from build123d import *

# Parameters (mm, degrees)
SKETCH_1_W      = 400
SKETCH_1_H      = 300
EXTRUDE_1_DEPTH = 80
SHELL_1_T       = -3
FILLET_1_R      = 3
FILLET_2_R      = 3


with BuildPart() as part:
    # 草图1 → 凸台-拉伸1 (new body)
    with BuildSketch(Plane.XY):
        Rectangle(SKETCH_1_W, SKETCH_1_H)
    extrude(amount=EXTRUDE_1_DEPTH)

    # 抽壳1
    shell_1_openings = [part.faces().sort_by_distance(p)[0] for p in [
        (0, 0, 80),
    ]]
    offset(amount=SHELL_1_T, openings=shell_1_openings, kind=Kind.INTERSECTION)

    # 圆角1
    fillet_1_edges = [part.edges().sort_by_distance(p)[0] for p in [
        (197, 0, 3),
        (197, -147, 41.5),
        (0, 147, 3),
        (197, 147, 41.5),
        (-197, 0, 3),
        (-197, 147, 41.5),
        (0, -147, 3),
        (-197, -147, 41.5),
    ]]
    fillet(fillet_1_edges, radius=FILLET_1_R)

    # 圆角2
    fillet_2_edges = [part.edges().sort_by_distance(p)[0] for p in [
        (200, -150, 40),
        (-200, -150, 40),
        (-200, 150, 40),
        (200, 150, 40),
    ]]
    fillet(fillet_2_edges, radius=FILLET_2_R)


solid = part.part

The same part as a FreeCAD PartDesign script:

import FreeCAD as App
import Part
import Sketcher
from FreeCAD import Vector


def edges_at(feature, points):
    """Names of the edges that pass closest to the given points."""
    edges = feature.Shape.Edges
    near = lambda p: min(range(len(edges)), key=lambda i: edges[i].distToShape(Part.Vertex(*p))[0])
    return sorted({f"Edge{near(p) + 1}" for p in points})


def faces_at(feature, points):
    """Names of the faces that lie closest to the given points."""
    faces = feature.Shape.Faces
    near = lambda p: min(range(len(faces)), key=lambda i: faces[i].distToShape(Part.Vertex(*p))[0])
    return sorted({f"Face{near(p) + 1}" for p in points})


def add_polygon(sketch, points):
    """Adds a closed chain of lines whose ends are joined by coincident constraints."""
    first, n = sketch.GeometryCount, len(points)
    for a, b in zip(points, points[1:] + points[:1]):
        sketch.addGeometry(Part.LineSegment(App.Vector(*a, 0), App.Vector(*b, 0)), False)
    for i in range(n):
        sketch.addConstraint(Sketcher.Constraint("Coincident", first + i, 2, first + (i + 1) % n, 1))

doc = App.newDocument("Part")
params = doc.addObject("Spreadsheet::Sheet", "Params")
for row, (alias, value) in enumerate([
    ("sketch1_width", "400 mm"),
    ("sketch1_height", "300 mm"),
    ("pad1_length", "80 mm"),
    ("thickness_wall", "3 mm"),
    ("fillet_radius", "3 mm"),
    ("fillet2_radius", "3 mm"),
], start=1):
    params.set(f"A{row}", alias)
    params.set(f"B{row}", "=" + value)
    params.setAlias(f"B{row}", alias)

body = doc.addObject("PartDesign::Body", "Body")

sketch1 = body.newObject("Sketcher::SketchObject", "Sketch")
sketch1.AttachmentSupport = (doc.getObject("XY_Plane"), [""])
sketch1.MapMode = "FlatFace"
add_polygon(sketch1, [(-200, 150), (-200, -150), (200, -150), (200, 150)])
sketch1.addConstraint(Sketcher.Constraint("Vertical", 0))
sketch1.addConstraint(Sketcher.Constraint("Horizontal", 1))
sketch1.addConstraint(Sketcher.Constraint("Vertical", 2))
sketch1.addConstraint(Sketcher.Constraint("Horizontal", 3))
sketch1.addConstraint(Sketcher.Constraint("Symmetric", 0, 2, 2, 2, -1, 1))
sketch1.addConstraint(Sketcher.Constraint("DistanceX", 1, 1, 1, 2, 400.0))
sketch1.addConstraint(Sketcher.Constraint("DistanceY", 0, 2, 0, 1, 300.0))
sketch1.setExpression("Constraints[9]", "Params.sketch1_width")
sketch1.setExpression("Constraints[10]", "Params.sketch1_height")
pad1 = body.newObject("PartDesign::Pad", "Pad")
pad1.Profile = sketch1
pad1.setExpression("Length", "Params.pad1_length")
doc.recompute()

thickness = body.newObject("PartDesign::Thickness", "Thickness")
thickness.Base = (pad1, faces_at(pad1, [(0, 0, 80)]))
thickness.setExpression("Value", "Params.thickness_wall")
thickness.Reversed = True
thickness.Join = "Intersection"
doc.recompute()

fillet = body.newObject("PartDesign::Fillet", "Fillet")
fillet.Base = (thickness, edges_at(thickness, [
    (197, 0, 3),
    (197, -147, 41.5),
    (0, 147, 3),
    (197, 147, 41.5),
    (-197, 0, 3),
    (-197, 147, 41.5),
    (0, -147, 3),
    (-197, -147, 41.5),
]))
fillet.setExpression("Radius", "Params.fillet_radius")
doc.recompute()

fillet2 = body.newObject("PartDesign::Fillet", "Fillet001")
fillet2.Base = (fillet, edges_at(fillet, [
    (200, -150, 40),
    (-200, -150, 40),
    (-200, 150, 40),
    (200, 150, 40),
]))
fillet2.setExpression("Radius", "Params.fillet2_radius")

doc.recompute()
